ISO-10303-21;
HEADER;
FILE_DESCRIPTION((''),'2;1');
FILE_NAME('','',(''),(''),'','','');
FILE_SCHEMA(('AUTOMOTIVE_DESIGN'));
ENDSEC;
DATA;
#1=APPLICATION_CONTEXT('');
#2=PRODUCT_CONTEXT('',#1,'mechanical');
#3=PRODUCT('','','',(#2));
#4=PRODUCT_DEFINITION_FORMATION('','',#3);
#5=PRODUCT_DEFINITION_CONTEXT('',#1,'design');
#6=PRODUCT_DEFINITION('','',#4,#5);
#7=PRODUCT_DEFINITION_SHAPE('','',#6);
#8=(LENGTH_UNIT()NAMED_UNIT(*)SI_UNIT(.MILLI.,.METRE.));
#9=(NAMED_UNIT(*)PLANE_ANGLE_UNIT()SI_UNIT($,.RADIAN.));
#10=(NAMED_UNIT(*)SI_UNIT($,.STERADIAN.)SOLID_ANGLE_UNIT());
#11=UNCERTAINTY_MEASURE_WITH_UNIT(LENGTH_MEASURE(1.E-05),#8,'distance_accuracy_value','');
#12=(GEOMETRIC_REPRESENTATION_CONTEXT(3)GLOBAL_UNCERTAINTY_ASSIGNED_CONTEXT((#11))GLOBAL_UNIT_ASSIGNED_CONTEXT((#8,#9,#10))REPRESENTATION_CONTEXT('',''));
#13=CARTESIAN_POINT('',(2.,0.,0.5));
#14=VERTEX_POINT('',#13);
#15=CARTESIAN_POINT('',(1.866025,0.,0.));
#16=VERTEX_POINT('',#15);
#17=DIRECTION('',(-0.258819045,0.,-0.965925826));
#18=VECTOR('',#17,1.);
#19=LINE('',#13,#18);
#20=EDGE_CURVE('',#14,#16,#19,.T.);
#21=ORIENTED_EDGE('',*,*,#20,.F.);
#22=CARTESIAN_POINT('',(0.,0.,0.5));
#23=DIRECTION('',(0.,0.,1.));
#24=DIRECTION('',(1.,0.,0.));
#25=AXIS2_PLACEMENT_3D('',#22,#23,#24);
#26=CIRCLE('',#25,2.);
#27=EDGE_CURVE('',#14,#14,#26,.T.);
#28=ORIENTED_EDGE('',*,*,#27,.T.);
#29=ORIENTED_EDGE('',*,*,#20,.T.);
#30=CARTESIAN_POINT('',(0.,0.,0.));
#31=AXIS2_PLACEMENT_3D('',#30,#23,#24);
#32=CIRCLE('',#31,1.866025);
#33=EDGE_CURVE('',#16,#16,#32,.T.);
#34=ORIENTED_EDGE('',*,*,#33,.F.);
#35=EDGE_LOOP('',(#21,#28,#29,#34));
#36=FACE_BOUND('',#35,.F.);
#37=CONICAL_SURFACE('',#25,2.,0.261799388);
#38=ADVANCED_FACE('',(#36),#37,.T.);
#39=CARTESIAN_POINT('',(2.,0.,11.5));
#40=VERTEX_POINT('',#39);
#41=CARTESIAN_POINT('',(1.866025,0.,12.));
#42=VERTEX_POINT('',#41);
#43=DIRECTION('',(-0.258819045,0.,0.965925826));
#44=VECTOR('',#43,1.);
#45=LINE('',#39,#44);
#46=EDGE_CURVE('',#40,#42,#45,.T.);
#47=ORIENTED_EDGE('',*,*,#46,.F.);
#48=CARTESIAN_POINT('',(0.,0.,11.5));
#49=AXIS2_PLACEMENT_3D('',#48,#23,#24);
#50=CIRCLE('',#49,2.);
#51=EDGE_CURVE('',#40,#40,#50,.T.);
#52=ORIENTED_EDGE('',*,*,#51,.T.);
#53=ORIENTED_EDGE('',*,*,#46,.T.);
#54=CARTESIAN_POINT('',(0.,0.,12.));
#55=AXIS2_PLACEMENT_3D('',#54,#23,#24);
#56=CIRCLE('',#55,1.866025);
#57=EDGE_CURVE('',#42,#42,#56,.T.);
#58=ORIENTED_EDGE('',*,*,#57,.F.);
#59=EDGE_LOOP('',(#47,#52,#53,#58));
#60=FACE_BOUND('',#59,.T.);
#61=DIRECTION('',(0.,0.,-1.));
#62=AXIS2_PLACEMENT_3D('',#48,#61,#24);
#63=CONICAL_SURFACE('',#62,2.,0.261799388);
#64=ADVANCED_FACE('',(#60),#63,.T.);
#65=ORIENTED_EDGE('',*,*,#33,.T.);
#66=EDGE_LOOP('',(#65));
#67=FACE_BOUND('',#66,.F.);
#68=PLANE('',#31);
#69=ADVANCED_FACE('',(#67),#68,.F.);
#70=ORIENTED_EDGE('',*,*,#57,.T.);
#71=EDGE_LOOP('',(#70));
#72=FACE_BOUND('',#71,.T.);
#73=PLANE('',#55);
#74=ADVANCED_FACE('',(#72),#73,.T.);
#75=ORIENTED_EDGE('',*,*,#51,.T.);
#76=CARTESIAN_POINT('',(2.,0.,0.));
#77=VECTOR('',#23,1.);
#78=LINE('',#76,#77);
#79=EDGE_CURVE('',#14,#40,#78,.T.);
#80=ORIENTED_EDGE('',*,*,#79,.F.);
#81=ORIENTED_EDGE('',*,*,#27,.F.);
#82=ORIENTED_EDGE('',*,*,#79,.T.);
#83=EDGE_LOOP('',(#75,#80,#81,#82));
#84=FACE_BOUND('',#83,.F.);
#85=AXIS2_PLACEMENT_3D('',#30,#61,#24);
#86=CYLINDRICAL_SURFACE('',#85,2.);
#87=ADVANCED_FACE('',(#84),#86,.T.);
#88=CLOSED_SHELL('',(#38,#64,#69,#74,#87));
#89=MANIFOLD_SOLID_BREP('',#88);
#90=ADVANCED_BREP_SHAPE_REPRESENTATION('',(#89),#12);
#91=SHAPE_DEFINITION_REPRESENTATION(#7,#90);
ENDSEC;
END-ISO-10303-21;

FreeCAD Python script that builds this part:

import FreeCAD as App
import Part
import Sketcher

V = App.Vector


def edges_at(feature, points):
    """Names of the edges that pass closest to the given points."""
    edges = feature.Shape.Edges
    near = lambda p: min(range(len(edges)), key=lambda i: edges[i].distToShape(Part.Vertex(*p))[0])
    return sorted({f"Edge{near(p) + 1}" for p in points})

doc = App.newDocument("Part")
body = doc.addObject("PartDesign::Body", "Body")

# Sketch on XY plane
sketch1 = body.newObject("Sketcher::SketchObject", "Sketch")
sketch1.AttachmentSupport = (doc.getObject("XY_Plane"), [""])
sketch1.MapMode = "FlatFace"
sketch1.addGeometry(Part.Circle(V(0, 0, 0), V(0, 0, 1), 2), False)
sketch1.addConstraint([
    Sketcher.Constraint("Coincident", 0, 3, -1, 1),
    Sketcher.Constraint("Diameter", 0, 4.0),
])
pad1 = body.newObject("PartDesign::Pad", "Pad")
pad1.Profile = sketch1
pad1.Length = 12
doc.recompute()

chamfer = body.newObject("PartDesign::Chamfer", "Chamfer")
chamfer.Base = (pad1, edges_at(pad1, [(-2, 0, 0), (-2, 0, 12)]))
chamfer.ChamferType = "Distance and Angle"
chamfer.Size = 0.5
chamfer.Angle = 15

doc.recompute()
